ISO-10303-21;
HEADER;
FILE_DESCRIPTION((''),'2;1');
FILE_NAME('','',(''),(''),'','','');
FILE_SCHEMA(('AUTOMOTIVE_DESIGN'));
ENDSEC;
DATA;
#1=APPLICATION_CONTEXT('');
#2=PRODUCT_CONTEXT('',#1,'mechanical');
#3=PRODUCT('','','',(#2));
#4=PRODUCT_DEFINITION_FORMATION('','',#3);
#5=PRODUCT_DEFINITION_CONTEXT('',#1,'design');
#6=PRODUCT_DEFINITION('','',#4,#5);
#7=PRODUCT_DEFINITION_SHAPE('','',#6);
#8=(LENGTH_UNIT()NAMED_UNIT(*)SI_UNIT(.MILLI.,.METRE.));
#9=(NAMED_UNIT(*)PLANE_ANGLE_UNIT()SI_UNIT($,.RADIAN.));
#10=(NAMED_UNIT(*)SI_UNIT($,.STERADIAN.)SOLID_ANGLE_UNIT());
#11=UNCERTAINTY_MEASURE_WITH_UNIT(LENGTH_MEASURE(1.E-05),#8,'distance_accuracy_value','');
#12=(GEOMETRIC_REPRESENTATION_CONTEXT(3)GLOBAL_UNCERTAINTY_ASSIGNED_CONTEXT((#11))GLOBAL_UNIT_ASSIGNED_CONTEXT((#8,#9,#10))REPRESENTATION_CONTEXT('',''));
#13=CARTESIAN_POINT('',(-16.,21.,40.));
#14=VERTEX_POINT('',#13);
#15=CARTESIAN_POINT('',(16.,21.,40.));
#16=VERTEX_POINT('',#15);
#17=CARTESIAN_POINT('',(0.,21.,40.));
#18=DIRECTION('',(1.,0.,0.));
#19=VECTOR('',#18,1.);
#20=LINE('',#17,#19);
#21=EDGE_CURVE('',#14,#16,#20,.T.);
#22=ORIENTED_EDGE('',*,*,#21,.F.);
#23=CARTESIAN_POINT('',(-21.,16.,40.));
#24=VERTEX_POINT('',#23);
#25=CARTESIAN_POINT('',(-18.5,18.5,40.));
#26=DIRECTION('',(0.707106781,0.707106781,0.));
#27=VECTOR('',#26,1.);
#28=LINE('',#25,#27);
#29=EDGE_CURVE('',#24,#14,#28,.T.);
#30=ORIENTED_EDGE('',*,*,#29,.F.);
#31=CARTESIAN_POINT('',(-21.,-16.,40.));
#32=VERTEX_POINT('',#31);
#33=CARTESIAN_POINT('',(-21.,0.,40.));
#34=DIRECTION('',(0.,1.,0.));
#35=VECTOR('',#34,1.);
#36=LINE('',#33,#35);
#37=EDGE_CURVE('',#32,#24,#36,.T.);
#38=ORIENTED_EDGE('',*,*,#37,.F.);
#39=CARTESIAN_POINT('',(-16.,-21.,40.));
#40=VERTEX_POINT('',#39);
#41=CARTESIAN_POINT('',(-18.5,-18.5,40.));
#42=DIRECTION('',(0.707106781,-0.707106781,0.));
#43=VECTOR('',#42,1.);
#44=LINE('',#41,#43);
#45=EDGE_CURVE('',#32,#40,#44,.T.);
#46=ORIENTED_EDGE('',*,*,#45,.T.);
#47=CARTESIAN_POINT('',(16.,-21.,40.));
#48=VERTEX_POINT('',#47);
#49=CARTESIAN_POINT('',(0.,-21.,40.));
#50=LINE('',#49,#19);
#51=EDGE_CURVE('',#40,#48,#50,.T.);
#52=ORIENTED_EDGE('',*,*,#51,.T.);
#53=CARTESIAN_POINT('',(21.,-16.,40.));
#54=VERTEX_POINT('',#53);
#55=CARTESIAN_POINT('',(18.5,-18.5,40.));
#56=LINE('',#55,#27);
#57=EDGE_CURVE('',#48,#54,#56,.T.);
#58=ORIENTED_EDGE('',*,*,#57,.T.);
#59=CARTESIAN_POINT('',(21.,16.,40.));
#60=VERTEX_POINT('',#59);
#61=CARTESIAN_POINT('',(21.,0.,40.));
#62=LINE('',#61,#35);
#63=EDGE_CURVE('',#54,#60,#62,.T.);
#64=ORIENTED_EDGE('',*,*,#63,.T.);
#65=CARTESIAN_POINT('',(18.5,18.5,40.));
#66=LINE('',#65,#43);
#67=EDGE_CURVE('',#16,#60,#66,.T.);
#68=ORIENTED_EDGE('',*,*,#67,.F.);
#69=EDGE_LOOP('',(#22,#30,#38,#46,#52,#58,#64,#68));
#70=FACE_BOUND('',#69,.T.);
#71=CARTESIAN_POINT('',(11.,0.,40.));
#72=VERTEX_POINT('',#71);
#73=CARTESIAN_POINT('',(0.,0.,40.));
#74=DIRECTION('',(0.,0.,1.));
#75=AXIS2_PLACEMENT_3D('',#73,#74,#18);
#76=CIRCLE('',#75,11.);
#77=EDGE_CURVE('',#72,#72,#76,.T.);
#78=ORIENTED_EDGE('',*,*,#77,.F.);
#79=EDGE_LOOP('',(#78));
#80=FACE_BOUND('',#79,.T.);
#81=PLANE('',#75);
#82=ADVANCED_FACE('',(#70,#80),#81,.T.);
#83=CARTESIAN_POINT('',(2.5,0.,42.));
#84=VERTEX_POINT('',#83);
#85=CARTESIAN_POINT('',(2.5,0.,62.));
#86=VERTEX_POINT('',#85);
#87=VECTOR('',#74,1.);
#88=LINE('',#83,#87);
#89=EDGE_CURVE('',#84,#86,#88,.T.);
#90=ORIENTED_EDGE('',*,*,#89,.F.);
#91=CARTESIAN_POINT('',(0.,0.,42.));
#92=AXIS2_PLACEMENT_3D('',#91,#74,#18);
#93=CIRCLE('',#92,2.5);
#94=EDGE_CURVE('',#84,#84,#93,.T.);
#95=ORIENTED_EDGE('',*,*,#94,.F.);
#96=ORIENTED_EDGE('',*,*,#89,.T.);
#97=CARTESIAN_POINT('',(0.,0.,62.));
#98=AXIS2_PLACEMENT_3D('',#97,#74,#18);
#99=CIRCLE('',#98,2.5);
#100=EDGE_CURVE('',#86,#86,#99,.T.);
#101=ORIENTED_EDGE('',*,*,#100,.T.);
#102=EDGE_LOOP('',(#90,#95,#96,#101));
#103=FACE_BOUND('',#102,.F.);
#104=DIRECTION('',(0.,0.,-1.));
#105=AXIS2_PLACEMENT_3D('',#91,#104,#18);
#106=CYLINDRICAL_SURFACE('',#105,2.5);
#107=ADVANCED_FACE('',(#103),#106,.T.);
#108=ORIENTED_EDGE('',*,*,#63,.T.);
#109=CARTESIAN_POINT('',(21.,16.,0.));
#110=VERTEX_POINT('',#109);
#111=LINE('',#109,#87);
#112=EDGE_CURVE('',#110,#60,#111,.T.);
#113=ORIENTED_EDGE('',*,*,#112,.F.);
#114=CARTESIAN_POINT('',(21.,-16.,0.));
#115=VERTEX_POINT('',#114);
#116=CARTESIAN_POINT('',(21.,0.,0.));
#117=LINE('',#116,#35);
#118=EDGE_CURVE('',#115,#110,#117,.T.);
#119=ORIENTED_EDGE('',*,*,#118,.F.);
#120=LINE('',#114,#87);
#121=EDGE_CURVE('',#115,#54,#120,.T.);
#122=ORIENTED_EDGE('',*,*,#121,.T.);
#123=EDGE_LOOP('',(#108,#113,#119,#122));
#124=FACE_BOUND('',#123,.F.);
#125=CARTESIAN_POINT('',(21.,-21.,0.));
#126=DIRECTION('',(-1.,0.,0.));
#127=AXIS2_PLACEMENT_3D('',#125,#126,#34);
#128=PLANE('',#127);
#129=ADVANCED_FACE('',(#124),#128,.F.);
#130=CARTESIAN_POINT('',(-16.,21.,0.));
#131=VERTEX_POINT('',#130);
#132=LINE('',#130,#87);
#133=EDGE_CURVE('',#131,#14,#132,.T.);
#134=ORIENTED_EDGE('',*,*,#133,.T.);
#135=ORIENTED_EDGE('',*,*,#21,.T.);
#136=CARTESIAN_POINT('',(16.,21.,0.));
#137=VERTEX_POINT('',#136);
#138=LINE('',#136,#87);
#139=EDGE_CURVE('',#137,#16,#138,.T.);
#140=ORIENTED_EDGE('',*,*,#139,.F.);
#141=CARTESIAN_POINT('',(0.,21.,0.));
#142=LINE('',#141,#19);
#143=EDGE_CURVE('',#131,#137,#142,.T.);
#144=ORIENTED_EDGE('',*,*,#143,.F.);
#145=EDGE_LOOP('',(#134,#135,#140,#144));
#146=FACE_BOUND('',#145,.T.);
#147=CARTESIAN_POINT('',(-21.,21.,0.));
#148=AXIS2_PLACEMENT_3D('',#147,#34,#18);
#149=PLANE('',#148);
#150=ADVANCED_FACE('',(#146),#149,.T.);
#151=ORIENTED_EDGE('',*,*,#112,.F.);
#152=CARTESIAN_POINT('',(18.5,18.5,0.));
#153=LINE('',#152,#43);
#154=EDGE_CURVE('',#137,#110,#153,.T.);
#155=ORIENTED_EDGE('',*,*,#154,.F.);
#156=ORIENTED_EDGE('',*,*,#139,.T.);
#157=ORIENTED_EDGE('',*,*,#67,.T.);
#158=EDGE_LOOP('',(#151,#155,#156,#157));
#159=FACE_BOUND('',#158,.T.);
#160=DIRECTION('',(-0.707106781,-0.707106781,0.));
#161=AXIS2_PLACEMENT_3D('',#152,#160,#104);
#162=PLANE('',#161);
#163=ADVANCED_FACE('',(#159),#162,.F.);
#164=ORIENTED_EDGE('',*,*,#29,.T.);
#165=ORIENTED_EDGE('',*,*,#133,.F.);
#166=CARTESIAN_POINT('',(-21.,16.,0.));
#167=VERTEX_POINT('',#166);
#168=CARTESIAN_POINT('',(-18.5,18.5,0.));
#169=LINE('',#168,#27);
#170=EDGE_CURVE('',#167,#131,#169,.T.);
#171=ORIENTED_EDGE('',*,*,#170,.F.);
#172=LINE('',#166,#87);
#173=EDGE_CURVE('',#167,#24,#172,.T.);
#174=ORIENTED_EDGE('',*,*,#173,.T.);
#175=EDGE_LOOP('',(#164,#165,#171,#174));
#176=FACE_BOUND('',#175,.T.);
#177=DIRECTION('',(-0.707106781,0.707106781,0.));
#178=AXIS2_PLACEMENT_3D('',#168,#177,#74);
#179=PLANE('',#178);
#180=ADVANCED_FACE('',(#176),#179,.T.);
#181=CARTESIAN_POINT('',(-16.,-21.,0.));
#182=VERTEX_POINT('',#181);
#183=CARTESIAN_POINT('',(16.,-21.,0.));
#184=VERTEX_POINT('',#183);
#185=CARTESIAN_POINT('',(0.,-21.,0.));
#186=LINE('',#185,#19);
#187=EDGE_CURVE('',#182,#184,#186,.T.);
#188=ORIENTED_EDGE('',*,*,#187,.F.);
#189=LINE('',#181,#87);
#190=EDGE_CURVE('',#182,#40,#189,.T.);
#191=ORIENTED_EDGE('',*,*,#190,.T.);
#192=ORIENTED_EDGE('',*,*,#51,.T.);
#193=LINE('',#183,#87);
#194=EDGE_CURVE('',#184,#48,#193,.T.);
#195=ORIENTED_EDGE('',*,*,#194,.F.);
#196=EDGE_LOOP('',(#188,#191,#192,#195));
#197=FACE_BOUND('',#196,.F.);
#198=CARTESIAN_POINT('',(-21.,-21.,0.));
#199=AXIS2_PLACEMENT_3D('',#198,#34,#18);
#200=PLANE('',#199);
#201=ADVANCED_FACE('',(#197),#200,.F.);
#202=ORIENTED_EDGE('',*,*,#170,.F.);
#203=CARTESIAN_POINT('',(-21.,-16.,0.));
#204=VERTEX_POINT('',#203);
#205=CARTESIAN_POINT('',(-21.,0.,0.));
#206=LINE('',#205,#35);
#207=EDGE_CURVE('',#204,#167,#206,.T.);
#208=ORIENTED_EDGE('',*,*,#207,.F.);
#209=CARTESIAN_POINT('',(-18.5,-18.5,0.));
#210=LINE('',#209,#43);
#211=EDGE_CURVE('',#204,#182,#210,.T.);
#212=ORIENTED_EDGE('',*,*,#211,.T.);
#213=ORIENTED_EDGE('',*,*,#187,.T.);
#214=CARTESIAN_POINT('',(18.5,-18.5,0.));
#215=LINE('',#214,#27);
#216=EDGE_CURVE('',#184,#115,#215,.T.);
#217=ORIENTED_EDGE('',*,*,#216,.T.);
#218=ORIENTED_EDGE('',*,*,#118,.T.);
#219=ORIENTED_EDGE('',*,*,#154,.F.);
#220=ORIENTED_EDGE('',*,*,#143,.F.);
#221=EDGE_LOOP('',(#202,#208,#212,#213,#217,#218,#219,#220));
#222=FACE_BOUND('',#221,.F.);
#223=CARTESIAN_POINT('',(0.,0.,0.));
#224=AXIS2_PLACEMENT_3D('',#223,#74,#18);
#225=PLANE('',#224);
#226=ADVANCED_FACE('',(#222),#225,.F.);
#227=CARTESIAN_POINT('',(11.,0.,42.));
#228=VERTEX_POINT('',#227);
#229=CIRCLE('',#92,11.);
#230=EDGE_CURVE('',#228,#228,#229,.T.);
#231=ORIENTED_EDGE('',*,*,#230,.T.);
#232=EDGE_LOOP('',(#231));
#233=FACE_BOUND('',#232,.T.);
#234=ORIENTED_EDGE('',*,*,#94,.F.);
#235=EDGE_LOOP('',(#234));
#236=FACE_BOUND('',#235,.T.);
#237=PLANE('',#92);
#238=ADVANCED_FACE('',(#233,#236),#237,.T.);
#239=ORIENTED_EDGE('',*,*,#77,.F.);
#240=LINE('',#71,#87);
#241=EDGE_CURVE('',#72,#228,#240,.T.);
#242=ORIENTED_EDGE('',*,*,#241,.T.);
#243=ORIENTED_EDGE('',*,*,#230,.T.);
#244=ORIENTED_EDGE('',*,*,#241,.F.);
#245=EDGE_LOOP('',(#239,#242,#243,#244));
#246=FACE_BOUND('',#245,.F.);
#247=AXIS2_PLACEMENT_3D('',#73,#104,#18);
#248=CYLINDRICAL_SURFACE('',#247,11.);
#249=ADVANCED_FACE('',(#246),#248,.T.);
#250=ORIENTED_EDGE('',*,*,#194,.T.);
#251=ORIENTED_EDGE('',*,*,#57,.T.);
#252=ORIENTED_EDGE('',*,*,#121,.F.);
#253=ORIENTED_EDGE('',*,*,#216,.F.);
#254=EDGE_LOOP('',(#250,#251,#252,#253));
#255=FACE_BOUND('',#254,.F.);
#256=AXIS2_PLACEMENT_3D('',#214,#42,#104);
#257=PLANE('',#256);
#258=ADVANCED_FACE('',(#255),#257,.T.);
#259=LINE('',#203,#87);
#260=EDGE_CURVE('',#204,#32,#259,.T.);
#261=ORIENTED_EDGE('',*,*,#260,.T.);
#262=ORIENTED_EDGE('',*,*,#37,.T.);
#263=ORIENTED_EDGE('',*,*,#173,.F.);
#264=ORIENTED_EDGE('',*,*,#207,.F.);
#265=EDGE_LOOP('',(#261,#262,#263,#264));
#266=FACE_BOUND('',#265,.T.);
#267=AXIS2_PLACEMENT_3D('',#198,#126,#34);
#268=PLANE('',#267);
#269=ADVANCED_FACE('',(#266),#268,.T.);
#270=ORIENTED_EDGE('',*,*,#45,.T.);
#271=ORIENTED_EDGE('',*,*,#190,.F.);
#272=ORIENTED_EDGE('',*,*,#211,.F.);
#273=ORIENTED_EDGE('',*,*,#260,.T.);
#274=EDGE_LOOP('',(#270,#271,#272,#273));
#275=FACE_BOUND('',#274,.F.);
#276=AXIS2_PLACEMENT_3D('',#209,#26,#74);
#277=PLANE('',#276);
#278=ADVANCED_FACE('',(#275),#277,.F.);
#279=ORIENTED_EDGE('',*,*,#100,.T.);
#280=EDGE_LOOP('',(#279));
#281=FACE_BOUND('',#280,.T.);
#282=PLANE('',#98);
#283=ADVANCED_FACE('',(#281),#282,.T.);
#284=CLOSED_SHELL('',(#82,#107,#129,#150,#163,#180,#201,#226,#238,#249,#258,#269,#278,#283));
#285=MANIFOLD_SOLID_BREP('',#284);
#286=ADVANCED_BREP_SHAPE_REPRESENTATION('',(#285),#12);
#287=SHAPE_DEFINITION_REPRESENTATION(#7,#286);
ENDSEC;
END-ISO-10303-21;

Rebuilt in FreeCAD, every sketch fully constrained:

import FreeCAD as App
import Part
import Sketcher

V = App.Vector


def edges_at(feature, points):
    """Names of the edges that pass closest to the given points."""
    edges = feature.Shape.Edges
    near = lambda p: min(range(len(edges)), key=lambda i: edges[i].distToShape(Part.Vertex(*p))[0])
    return sorted({f"Edge{near(p) + 1}" for p in points})


def add_polygon(sketch, points):
    """Adds a closed chain of lines whose ends are joined by coincident constraints."""
    first, n = sketch.GeometryCount, len(points)
    for a, b in zip(points, points[1:] + points[:1]):
        sketch.addGeometry(Part.LineSegment(App.Vector(*a, 0), App.Vector(*b, 0)), False)
    for i in range(n):
        sketch.addConstraint(Sketcher.Constraint("Coincident", first + i, 2, first + (i + 1) % n, 1))

doc = App.newDocument("Part")
params = doc.addObject("Spreadsheet::Sheet", "Params")
for row, (alias, value) in enumerate([
    ("sketch1_width", "42 mm"),
    ("pad1_length", "40 mm"),
    ("sketch2_diameter", "22 mm"),
    ("pad2_length", "2 mm"),
    ("sketch3_diameter", "5 mm"),
    ("pad3_length", "20 mm"),
    ("chamfer_size", "5 mm"),
], start=1):
    params.set(f"A{row}", alias)
    params.set(f"B{row}", "=" + value)
    params.setAlias(f"B{row}", alias)

body = doc.addObject("PartDesign::Body", "Body")

# Sketch on XY plane
sketch1 = doc.addObject("Sketcher::SketchObject", "Sketch")
body.addObject(sketch1)
sketch1.AttachmentSupport = (doc.XY_Plane, [""])
sketch1.MapMode = "FlatFace"
add_polygon(sketch1, [(-21, 21), (-21, -21), (21, -21), (21, 21)])  # lines 0-3
sketch1.addConstraint([
    Sketcher.Constraint("Vertical", 0),
    Sketcher.Constraint("Horizontal", 1),
    Sketcher.Constraint("Vertical", 2),
    Sketcher.Constraint("Horizontal", 3),
    Sketcher.Constraint("Symmetric", 0, 2, 2, 2, -1, 1),
    Sketcher.Constraint("Equal", 3, 0),
    Sketcher.Constraint("DistanceX", 1, 1, 1, 2, 42.0),
])
sketch1.setExpression("Constraints[10]", "Params.sketch1_width")
pad1 = doc.addObject("PartDesign::Pad", "Pad")
body.addObject(pad1)
pad1.Profile = sketch1
pad1.setExpression("Length", "Params.pad1_length")

# Sketch on XY plane
sketch2 = doc.addObject("Sketcher::SketchObject", "Sketch001")
body.addObject(sketch2)
sketch2.AttachmentSupport = (doc.XY_Plane, [""])
sketch2.MapMode = "FlatFace"
sketch2.AttachmentOffset = App.Placement(V(0, 0, 40), App.Rotation())
sketch2.addGeometry(Part.Circle(V(0, 0, 0), V(0, 0, 1), 11), False)
sketch2.addConstraint([
    Sketcher.Constraint("Coincident", 0, 3, -1, 1),
    Sketcher.Constraint("Diameter", 0, 22.0),
])
sketch2.setExpression("Constraints[1]", "Params.sketch2_diameter")
pad2 = doc.addObject("PartDesign::Pad", "Pad001")
body.addObject(pad2)
pad2.Profile = sketch2
pad2.setExpression("Length", "Params.pad2_length")

# Sketch on XY plane
sketch3 = doc.addObject("Sketcher::SketchObject", "Sketch002")
body.addObject(sketch3)
sketch3.AttachmentSupport = (doc.XY_Plane, [""])
sketch3.MapMode = "FlatFace"
sketch3.AttachmentOffset = App.Placement(V(0, 0, 42), App.Rotation())
sketch3.addGeometry(Part.Circle(V(0, 0, 0), V(0, 0, 1), 2.5), False)
sketch3.addConstraint([
    Sketcher.Constraint("Coincident", 0, 3, -1, 1),
    Sketcher.Constraint("Diameter", 0, 5.0),
])
sketch3.setExpression("Constraints[1]", "Params.sketch3_diameter")
pad3 = doc.addObject("PartDesign::Pad", "Pad002")
body.addObject(pad3)
pad3.Profile = sketch3
pad3.setExpression("Length", "Params.pad3_length")
doc.recompute()

chamfer = doc.addObject("PartDesign::Chamfer", "Chamfer")
body.addObject(chamfer)
chamfer.Base = (pad3, edges_at(pad3, [
    (21, -21, 20),
    (-21, 21, 20),
    (-21, -21, 20),
    (21, 21, 20),
]))
chamfer.setExpression("Size", "Params.chamfer_size")

doc.recompute()
